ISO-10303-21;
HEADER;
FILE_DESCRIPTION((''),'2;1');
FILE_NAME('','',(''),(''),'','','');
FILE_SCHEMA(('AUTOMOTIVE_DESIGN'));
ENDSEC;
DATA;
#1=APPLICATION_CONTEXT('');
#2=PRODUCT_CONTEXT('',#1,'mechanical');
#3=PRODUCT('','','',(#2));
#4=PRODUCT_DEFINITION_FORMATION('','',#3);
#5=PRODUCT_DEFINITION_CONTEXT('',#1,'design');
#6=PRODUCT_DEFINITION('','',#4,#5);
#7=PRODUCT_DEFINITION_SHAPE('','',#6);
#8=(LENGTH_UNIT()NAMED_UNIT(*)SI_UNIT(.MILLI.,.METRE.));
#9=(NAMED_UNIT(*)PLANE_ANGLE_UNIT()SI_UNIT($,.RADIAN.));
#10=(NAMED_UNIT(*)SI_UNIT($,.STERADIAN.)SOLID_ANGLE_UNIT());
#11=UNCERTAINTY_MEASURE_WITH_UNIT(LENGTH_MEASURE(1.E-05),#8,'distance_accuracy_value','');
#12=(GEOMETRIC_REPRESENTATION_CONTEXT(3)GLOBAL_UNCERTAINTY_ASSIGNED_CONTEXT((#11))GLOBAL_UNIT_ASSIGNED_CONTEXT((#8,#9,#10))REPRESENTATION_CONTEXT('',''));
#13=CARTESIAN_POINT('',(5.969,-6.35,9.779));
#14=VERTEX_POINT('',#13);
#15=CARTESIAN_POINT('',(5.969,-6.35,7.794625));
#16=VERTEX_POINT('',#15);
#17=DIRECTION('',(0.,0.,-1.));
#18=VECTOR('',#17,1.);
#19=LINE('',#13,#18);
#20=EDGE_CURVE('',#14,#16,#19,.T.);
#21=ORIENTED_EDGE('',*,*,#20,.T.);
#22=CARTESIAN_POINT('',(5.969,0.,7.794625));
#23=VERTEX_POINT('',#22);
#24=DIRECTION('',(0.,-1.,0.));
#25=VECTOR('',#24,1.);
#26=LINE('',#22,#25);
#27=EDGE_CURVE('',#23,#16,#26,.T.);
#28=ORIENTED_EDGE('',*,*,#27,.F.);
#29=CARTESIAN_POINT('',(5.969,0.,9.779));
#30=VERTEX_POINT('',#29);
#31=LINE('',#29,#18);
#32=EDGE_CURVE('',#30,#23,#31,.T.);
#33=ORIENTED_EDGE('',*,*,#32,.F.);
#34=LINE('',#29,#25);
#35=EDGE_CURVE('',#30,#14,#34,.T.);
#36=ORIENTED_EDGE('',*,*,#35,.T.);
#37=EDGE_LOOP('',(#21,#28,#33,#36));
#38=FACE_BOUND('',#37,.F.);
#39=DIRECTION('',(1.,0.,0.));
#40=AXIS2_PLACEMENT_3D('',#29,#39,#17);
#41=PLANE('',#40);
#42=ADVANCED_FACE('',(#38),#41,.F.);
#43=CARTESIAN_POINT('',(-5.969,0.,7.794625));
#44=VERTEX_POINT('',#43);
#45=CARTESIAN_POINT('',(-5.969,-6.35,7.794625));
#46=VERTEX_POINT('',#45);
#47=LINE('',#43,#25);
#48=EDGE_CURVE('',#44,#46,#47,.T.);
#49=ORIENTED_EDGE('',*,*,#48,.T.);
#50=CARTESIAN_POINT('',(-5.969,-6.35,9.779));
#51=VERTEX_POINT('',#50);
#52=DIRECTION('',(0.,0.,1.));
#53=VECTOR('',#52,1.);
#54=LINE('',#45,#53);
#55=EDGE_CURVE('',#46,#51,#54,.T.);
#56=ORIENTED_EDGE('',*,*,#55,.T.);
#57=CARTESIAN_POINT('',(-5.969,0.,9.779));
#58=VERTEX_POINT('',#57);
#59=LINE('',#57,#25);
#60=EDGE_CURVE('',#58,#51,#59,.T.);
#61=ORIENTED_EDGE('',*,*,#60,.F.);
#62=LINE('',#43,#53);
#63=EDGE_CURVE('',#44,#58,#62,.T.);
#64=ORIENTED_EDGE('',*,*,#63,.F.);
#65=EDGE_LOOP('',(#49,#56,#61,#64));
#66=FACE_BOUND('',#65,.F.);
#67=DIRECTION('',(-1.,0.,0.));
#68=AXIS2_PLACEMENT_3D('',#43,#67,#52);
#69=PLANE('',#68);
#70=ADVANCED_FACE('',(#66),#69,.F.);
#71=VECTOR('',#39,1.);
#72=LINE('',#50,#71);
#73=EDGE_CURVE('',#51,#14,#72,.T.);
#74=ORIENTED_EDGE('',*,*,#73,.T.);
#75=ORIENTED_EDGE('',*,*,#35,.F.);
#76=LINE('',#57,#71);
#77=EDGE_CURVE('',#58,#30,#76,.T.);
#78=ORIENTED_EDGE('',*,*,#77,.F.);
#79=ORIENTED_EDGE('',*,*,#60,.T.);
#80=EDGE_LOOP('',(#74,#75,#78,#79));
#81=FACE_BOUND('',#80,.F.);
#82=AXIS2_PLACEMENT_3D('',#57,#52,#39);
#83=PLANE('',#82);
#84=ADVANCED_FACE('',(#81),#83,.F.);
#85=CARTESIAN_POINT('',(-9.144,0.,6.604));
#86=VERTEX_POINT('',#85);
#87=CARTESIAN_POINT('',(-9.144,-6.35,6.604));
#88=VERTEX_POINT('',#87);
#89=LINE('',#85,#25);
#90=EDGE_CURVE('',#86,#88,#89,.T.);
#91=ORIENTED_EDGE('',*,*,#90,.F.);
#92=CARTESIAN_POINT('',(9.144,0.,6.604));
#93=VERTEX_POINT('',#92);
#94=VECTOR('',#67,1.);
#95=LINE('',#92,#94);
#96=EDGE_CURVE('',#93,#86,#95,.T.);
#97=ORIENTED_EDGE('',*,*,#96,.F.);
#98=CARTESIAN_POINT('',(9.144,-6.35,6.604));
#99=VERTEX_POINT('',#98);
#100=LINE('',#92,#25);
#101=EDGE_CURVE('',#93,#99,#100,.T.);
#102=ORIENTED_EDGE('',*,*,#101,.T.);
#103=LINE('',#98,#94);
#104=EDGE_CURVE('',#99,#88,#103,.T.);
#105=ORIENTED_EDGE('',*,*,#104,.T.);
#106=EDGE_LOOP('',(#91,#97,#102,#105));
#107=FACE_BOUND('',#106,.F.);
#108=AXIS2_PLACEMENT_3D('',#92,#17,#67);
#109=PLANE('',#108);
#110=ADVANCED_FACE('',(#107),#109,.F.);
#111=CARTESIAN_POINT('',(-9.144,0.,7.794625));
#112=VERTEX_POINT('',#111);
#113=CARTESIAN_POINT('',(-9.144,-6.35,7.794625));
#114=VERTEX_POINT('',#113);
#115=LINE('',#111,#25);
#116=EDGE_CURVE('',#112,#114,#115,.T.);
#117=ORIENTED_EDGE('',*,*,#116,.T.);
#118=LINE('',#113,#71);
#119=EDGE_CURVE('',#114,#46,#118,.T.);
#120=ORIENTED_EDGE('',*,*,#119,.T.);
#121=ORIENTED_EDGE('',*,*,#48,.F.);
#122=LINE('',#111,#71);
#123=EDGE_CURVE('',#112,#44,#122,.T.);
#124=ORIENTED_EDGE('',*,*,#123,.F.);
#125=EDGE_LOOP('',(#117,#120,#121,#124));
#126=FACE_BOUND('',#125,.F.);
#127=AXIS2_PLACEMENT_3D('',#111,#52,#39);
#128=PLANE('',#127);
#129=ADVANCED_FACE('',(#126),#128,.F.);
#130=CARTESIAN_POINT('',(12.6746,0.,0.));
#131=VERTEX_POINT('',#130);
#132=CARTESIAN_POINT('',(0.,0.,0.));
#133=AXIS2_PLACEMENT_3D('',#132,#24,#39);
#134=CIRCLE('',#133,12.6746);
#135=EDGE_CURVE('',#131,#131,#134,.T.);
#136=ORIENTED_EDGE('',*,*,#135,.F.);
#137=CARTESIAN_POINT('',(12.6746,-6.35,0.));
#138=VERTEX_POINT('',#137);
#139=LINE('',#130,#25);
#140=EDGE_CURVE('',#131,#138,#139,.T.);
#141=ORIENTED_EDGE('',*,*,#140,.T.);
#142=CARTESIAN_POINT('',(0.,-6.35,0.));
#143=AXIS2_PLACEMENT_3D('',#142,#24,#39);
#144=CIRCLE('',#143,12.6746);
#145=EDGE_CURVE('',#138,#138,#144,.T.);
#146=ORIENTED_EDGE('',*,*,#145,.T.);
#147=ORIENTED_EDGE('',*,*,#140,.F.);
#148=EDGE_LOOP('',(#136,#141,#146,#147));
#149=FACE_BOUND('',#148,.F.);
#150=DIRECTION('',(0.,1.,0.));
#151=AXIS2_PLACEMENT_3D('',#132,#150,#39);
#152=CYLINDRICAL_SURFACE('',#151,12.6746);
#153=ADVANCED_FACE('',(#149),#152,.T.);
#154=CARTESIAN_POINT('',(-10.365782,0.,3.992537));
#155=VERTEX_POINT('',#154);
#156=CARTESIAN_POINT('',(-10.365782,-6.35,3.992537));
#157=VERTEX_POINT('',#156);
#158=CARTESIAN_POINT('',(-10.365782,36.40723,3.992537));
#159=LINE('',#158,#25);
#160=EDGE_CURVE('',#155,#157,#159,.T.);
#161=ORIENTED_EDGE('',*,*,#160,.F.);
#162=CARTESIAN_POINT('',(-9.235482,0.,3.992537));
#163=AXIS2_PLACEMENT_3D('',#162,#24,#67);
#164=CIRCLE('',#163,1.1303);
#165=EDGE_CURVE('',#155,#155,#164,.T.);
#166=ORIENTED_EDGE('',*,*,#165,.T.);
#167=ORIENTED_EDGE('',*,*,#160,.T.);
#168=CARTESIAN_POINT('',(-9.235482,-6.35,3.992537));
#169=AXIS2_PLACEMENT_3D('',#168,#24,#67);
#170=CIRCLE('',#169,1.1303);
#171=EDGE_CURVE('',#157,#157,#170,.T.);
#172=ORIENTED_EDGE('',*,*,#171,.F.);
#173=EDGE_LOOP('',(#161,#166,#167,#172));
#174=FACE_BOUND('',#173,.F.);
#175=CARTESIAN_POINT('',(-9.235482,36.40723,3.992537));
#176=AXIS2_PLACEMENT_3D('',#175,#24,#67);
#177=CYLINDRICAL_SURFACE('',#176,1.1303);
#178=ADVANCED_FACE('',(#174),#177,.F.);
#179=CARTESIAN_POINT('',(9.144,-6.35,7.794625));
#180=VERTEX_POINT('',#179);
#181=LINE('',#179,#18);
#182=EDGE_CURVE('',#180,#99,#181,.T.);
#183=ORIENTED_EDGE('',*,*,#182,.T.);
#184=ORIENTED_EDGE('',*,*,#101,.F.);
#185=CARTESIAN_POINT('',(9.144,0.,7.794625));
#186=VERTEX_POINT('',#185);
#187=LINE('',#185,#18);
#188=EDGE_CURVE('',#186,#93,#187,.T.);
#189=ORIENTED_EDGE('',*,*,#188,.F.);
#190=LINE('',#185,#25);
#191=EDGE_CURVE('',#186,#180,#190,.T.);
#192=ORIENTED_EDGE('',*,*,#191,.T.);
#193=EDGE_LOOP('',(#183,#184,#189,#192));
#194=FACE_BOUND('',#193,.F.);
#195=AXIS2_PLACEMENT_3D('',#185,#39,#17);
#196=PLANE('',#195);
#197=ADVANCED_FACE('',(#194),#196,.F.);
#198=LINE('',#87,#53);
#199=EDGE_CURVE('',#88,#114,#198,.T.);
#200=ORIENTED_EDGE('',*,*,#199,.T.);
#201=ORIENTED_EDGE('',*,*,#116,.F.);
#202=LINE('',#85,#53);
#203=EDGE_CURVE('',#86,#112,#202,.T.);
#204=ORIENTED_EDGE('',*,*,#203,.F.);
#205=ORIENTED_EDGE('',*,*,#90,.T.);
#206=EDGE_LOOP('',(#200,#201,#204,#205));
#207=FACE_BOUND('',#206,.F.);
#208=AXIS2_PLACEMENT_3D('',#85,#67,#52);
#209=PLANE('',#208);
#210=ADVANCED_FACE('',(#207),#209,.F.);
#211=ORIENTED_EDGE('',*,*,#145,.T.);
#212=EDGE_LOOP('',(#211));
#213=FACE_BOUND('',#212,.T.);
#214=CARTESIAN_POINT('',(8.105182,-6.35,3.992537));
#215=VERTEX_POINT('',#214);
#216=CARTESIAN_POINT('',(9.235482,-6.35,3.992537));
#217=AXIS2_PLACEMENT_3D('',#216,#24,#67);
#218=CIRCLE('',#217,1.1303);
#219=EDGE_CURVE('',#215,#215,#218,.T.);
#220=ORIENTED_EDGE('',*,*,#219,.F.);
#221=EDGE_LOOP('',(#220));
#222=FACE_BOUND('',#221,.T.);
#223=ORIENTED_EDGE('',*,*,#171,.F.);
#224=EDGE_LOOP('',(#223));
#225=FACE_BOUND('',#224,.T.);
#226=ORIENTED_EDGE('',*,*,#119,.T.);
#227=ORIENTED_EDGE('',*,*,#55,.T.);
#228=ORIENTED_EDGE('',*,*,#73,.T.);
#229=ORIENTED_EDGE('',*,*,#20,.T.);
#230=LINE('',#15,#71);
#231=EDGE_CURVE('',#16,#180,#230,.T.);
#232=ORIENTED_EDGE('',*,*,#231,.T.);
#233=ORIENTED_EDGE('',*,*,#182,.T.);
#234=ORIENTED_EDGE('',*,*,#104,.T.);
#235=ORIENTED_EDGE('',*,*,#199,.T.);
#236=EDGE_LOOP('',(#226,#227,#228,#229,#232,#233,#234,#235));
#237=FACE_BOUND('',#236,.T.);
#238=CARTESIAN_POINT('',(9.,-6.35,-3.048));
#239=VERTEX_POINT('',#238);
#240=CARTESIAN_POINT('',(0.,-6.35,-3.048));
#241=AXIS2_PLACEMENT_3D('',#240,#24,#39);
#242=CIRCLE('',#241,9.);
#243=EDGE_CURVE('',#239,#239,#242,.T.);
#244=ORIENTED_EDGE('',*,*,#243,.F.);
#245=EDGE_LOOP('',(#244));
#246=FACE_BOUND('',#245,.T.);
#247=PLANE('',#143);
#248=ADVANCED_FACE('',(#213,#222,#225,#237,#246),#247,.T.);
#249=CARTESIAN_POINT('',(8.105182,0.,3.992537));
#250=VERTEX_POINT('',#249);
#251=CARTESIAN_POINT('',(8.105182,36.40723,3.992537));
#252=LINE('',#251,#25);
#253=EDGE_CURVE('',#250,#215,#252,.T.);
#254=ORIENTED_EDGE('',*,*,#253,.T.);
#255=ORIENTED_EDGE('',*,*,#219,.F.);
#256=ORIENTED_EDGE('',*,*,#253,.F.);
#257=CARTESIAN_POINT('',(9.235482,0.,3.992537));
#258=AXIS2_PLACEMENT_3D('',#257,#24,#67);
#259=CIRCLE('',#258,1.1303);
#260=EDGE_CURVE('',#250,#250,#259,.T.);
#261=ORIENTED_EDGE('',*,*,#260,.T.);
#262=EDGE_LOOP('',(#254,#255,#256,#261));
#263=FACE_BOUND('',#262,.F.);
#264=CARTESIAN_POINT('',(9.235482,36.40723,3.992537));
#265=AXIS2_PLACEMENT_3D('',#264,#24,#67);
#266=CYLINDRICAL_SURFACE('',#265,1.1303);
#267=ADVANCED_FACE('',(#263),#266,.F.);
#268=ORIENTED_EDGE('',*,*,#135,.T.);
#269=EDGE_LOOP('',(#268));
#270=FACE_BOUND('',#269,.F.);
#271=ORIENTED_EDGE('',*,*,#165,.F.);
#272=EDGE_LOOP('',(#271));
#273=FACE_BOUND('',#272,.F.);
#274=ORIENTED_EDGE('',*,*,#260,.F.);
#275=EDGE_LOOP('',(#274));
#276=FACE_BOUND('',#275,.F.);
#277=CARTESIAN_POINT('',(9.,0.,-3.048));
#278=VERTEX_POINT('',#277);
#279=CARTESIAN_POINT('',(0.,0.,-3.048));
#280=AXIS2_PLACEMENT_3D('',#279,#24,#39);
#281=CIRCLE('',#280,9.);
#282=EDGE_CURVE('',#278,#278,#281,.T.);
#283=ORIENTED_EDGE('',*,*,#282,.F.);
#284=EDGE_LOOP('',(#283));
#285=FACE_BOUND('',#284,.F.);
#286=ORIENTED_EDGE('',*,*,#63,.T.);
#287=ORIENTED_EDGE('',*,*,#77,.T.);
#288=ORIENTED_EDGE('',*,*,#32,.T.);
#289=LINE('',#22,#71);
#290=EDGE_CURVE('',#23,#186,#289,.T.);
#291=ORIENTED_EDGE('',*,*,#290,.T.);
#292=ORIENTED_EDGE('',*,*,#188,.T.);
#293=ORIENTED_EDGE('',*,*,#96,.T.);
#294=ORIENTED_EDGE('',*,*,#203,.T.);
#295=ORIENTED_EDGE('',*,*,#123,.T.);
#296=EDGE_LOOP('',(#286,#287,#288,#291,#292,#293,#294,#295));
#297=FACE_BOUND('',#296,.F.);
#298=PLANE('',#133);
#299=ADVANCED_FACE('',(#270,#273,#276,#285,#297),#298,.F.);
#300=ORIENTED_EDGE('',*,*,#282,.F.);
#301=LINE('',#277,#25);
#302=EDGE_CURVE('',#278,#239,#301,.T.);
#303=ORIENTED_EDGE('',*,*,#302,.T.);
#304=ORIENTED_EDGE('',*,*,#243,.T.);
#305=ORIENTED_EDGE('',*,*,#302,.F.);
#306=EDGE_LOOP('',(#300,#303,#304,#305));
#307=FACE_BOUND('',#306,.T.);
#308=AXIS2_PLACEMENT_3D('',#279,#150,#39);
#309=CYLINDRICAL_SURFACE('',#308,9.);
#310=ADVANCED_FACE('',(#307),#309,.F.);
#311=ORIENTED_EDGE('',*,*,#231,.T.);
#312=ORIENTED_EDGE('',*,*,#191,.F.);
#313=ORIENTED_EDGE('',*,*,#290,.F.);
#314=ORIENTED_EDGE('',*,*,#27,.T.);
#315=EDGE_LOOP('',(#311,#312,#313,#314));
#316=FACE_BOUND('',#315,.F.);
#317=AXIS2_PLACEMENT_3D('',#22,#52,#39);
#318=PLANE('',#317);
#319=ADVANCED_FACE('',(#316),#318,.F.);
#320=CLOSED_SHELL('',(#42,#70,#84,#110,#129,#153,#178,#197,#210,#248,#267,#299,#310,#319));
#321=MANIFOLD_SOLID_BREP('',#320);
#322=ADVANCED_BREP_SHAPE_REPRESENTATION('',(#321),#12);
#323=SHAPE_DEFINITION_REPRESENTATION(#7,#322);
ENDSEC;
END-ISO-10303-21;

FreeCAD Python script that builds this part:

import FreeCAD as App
import Part
import Sketcher

V = App.Vector
Q = App.Units.Quantity


def add_polygon(sketch, points):
    """Adds a closed chain of lines whose ends are joined by coincident constraints."""
    first, n = sketch.GeometryCount, len(points)
    for a, b in zip(points, points[1:] + points[:1]):
        sketch.addGeometry(Part.LineSegment(App.Vector(*a, 0), App.Vector(*b, 0)), False)
    for i in range(n):
        sketch.addConstraint(Sketcher.Constraint("Coincident", first + i, 2, first + (i + 1) % n, 1))

doc = App.newDocument("Part")
body = doc.addObject("PartDesign::Body", "Body")

sketch1 = body.newObject("Sketcher::SketchObject", "Sketch")
sketch1.AttachmentSupport = (doc.getObject("XZ_Plane"), [""])
sketch1.MapMode = "FlatFace"
sketch1.addGeometry(Part.Circle(V(0, 0, 0), V(0, 0, 1), 12.6746), False)
sketch1.addGeometry(Part.Circle(V(0, -3.048, 0), V(0, 0, 1), 9), False)
add_polygon(sketch1, [(9.144, 7.794625), (9.144, 6.604), (-9.144, 6.604), (-9.144, 7.794625), (-5.969, 7.794625), (-5.969, 9.779), (5.969, 9.779), (5.969, 7.794625)])
sketch1.addConstraint(Sketcher.Constraint("Vertical", 2))
sketch1.addConstraint(Sketcher.Constraint("Horizontal", 3))
sketch1.addConstraint(Sketcher.Constraint("Vertical", 4))
sketch1.addConstraint(Sketcher.Constraint("Horizontal", 5))
sketch1.addConstraint(Sketcher.Constraint("Vertical", 6))
sketch1.addConstraint(Sketcher.Constraint("Horizontal", 7))
sketch1.addConstraint(Sketcher.Constraint("Vertical", 8))
sketch1.addConstraint(Sketcher.Constraint("Horizontal", 9))
sketch1.addConstraint(Sketcher.Constraint("Coincident", 0, 3, -1, 1))
sketch1.addConstraint(Sketcher.Constraint("Symmetric", 5, 2, 8, 2, -2))
sketch1.addConstraint(Sketcher.Constraint("PointOnObject", 1, 3, -2))
sketch1.addConstraint(Sketcher.Constraint("Equal", 5, 9))
sketch1.addConstraint(Sketcher.Constraint("Diameter", 0, Q("0.998 in")))
sketch1.addConstraint(Sketcher.Constraint("DistanceX", 3, 2, 3, 1, Q("0.72 in")))
sketch1.addConstraint(Sketcher.Constraint("DistanceX", 7, 1, 7, 2, Q("0.47 in")))
sketch1.addConstraint(Sketcher.Constraint("Diameter", 1, Q("18 mm")))
sketch1.addConstraint(Sketcher.Constraint("DistanceY", 2, 2, 2, 1, Q("0.046875 in")))
sketch1.addConstraint(Sketcher.Constraint("DistanceY", 6, 1, 6, 2, Q("0.078125 in")))
sketch1.addConstraint(Sketcher.Constraint("DistanceY", 1, 3, -1, 1, Q("0.12 in")))
sketch1.addConstraint(Sketcher.Constraint("DistanceY", -1, 1, 2, 2, Q("0.26 in")))
pad1 = body.newObject("PartDesign::Pad", "Pad")
pad1.Profile = sketch1
pad1.Length = Q("0.25 in")

sketch2 = body.newObject("Sketcher::SketchObject", "Sketch001")
sketch2.AttachmentSupport = (doc.getObject("XZ_Plane"), [""])
sketch2.MapMode = "FlatFace"
sketch2.addGeometry(Part.Circle(V(9.235482, 3.992537, 0), V(0, 0, 1), 1.1303), False)
sketch2.addGeometry(Part.Circle(V(-9.235482, 3.992537, 0), V(0, 0, 1), 1.1303), False)
sketch2.addConstraint(Sketcher.Constraint("Equal", 0, 1))
sketch2.addConstraint(Sketcher.Constraint("Symmetric", 0, 3, 1, 3, -2))
sketch2.addConstraint(Sketcher.Constraint("Diameter", 0, Q("0.089 in")))
sketch2.addConstraint(Sketcher.Constraint("DistanceX", -1, 1, 0, 3, Q("9.235482 mm")))
sketch2.addConstraint(Sketcher.Constraint("DistanceY", -1, 1, 0, 3, Q("3.992537 mm")))
doc.recompute()
hole = body.newObject("PartDesign::Hole", "Hole")
hole.Profile = sketch2
hole.ThreadType = "None"
hole.Diameter = Q("0.089 in")
hole.DepthType = "ThroughAll"
hole.Reversed = True

doc.recompute()
